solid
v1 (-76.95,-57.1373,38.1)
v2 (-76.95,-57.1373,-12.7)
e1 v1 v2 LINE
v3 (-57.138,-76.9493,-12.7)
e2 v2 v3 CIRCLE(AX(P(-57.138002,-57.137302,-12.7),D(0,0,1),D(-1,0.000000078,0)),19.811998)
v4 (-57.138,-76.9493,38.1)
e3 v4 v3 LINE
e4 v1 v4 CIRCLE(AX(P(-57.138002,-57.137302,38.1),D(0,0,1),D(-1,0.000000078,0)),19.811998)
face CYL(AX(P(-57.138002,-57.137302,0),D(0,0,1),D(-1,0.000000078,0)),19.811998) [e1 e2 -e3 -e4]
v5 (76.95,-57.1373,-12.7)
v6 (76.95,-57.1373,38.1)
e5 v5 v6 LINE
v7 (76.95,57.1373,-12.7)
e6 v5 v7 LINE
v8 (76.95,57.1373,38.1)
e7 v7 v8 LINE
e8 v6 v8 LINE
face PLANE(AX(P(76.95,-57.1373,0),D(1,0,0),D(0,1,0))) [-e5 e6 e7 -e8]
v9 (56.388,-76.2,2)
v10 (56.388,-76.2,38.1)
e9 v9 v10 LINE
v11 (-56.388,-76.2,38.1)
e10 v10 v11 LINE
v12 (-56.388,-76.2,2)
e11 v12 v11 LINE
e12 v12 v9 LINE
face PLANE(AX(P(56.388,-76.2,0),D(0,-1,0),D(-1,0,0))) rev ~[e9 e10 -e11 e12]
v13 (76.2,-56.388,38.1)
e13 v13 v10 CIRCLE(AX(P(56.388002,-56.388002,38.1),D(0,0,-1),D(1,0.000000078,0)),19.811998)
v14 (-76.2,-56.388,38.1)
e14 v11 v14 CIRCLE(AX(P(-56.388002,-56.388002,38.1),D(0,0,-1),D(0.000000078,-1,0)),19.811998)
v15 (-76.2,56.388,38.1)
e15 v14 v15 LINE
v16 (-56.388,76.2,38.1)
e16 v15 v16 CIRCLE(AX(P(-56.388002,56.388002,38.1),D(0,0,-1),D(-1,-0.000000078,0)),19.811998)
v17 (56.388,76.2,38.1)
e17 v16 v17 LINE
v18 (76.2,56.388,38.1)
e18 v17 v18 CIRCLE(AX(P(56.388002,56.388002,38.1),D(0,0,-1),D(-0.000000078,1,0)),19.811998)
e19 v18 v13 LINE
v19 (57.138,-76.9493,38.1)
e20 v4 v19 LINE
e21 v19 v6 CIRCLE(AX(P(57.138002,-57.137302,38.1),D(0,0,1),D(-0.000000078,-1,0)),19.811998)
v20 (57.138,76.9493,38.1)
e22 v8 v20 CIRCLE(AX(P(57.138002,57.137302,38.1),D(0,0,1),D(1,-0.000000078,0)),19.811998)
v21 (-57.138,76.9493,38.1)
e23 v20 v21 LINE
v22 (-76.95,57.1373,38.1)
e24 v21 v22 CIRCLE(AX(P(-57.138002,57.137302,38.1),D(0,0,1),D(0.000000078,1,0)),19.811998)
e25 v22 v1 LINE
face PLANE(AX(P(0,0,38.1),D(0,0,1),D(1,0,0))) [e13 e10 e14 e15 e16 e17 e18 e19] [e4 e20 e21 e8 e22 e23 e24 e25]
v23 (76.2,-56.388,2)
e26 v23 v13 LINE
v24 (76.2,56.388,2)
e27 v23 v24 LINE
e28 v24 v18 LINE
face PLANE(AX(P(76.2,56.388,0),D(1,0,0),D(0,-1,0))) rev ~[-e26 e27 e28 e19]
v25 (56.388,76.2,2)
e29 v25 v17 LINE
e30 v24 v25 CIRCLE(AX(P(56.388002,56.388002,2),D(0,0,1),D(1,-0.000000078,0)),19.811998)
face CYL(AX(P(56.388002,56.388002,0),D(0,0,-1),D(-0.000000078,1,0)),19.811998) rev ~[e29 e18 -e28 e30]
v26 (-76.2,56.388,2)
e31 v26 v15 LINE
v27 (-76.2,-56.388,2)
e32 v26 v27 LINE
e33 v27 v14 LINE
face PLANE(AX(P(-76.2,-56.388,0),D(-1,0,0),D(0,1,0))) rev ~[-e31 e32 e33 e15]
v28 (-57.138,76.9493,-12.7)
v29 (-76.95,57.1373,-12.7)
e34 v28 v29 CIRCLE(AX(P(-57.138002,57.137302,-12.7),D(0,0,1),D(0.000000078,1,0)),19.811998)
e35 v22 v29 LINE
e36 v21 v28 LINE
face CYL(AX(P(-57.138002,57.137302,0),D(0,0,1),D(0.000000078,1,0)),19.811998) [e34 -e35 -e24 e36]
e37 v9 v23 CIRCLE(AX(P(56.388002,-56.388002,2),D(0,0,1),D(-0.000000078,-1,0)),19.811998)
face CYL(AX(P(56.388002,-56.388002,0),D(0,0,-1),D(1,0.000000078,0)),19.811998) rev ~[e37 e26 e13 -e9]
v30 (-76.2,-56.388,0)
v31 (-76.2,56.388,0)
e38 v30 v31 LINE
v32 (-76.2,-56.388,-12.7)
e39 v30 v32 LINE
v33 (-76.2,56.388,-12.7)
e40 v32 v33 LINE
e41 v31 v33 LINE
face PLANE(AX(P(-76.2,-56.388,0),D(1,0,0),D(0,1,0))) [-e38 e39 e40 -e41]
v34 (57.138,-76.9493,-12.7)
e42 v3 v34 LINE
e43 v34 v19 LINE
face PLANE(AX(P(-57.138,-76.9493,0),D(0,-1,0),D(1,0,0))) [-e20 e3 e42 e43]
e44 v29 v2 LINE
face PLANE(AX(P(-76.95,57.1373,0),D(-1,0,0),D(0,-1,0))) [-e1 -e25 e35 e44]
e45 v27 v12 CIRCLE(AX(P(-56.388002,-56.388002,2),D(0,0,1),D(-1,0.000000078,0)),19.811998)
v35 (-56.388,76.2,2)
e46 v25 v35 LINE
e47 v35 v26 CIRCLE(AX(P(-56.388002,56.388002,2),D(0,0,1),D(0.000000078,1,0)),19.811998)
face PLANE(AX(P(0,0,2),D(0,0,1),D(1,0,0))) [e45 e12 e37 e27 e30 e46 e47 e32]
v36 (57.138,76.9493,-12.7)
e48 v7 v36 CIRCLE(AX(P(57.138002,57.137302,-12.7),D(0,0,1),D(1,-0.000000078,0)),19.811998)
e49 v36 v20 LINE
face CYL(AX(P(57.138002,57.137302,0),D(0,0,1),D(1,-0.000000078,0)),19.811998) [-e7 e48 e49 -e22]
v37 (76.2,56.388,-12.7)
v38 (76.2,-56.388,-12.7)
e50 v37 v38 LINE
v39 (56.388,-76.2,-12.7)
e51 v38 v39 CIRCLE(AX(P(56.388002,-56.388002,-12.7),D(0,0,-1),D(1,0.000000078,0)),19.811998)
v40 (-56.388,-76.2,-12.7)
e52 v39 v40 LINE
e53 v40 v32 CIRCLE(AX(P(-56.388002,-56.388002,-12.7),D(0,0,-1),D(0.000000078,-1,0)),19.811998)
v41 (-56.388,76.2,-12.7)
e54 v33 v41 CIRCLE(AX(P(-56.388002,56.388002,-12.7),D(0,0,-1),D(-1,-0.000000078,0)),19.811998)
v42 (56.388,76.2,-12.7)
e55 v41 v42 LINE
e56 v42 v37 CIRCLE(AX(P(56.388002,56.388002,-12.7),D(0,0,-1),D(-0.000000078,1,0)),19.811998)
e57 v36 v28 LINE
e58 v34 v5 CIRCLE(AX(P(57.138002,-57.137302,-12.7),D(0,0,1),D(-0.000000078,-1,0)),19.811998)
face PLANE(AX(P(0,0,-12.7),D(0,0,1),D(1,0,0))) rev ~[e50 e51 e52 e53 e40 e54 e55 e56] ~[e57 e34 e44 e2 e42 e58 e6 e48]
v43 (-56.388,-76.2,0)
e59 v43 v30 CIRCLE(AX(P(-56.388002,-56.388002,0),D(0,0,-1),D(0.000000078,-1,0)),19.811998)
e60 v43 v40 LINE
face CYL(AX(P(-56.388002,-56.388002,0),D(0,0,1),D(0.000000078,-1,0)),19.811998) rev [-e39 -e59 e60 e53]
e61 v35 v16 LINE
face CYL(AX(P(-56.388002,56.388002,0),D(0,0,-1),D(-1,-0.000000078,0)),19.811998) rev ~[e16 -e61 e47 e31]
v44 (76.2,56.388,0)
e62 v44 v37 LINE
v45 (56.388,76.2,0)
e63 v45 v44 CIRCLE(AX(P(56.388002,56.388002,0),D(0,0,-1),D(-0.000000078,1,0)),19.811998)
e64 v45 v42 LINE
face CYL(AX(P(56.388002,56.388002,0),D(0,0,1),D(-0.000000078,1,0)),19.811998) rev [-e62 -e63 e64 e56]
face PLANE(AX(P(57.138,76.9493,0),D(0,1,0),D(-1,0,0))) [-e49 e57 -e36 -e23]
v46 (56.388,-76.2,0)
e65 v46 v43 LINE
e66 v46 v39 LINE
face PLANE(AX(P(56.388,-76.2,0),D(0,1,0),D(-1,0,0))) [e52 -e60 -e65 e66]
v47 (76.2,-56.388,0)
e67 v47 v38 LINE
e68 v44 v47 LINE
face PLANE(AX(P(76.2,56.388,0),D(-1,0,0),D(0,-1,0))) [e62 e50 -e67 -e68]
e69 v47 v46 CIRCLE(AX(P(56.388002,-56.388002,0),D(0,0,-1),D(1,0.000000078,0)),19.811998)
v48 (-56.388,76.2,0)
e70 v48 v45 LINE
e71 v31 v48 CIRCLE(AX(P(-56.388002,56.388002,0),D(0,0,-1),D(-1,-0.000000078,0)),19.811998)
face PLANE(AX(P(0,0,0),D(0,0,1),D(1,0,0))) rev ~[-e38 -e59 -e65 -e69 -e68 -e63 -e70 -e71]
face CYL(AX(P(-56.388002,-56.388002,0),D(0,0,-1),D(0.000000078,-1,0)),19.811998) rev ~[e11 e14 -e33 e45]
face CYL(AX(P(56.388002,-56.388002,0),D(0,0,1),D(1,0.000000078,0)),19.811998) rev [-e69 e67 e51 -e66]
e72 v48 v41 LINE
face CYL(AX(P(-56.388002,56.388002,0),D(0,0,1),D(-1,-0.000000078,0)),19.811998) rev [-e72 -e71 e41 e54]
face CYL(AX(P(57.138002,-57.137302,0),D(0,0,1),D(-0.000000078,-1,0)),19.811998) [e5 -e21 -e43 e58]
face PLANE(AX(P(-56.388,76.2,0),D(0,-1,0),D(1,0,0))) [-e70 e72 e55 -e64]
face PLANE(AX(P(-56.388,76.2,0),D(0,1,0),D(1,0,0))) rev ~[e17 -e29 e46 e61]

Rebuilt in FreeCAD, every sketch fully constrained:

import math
import FreeCAD as App
import Part
import Sketcher
Q = App.Units.Quantity

doc = App.newDocument("Part")
body = doc.addObject("PartDesign::Body", "Body")

# Sketch on XY plane
sketch1 = doc.addObject("Sketcher::SketchObject", "Sketch")
body.addObject(sketch1)
sketch1.AttachmentSupport = (doc.XY_Plane, [""])
sketch1.MapMode = "FlatFace"
sketch1.addGeometry([
    Part.LineSegment(App.Vector(-57, -77, 0), App.Vector(57, -77, 0)),  # 0
    Part.ArcOfCircle(Part.Circle(App.Vector(57, -57, 0), App.Vector(0, 0, 1), 20), math.radians(-90), math.radians(0)),  # 1
    Part.LineSegment(App.Vector(77, -57, 0), App.Vector(77, 57, 0)),  # 2
    Part.ArcOfCircle(Part.Circle(App.Vector(57, 57, 0), App.Vector(0, 0, 1), 20), math.radians(0), math.radians(90)),  # 3
    Part.LineSegment(App.Vector(57, 77, 0), App.Vector(-57, 77, 0)),  # 4
    Part.ArcOfCircle(Part.Circle(App.Vector(-57, 57, 0), App.Vector(0, 0, 1), 20), math.radians(90), math.radians(180)),  # 5
    Part.LineSegment(App.Vector(-77, 57, 0), App.Vector(-77, -57, 0)),  # 6
    Part.ArcOfCircle(Part.Circle(App.Vector(-57, -57, 0), App.Vector(0, 0, 1), 20), math.radians(180), math.radians(270)),  # 7
    Part.ArcOfCircle(Part.Circle(App.Vector(-56, 56, 0), App.Vector(0, 0, 1), 20), math.radians(90), math.radians(180)),  # 8
    Part.LineSegment(App.Vector(-56, 76, 0), App.Vector(56, 76, 0)),  # 9
    Part.ArcOfCircle(Part.Circle(App.Vector(56, 56, 0), App.Vector(0, 0, 1), 20), math.radians(0), math.radians(90)),  # 10
    Part.LineSegment(App.Vector(76, 56, 0), App.Vector(76, -56, 0)),  # 11
    Part.ArcOfCircle(Part.Circle(App.Vector(56, -56, 0), App.Vector(0, 0, 1), 20), math.radians(-90), math.radians(0)),  # 12
    Part.LineSegment(App.Vector(56, -76, 0), App.Vector(-56, -76, 0)),  # 13
    Part.ArcOfCircle(Part.Circle(App.Vector(-56, -56, 0), App.Vector(0, 0, 1), 20), math.radians(180), math.radians(270)),  # 14
    Part.LineSegment(App.Vector(-76, -56, 0), App.Vector(-76, 56, 0)),  # 15
], False)
sketch1.addConstraint([
    Sketcher.Constraint("Tangent", 0, 2, 1, 1),
    Sketcher.Constraint("Tangent", 1, 2, 2, 1),
    Sketcher.Constraint("Tangent", 2, 2, 3, 1),
    Sketcher.Constraint("Tangent", 3, 2, 4, 1),
    Sketcher.Constraint("Tangent", 4, 2, 5, 1),
    Sketcher.Constraint("Tangent", 5, 2, 6, 1),
    Sketcher.Constraint("Tangent", 6, 2, 7, 1),
    Sketcher.Constraint("Tangent", 7, 2, 0, 1),
    Sketcher.Constraint("Tangent", 8, 1, 9, 1),
    Sketcher.Constraint("Tangent", 9, 2, 10, 2),
    Sketcher.Constraint("Tangent", 10, 1, 11, 1),
    Sketcher.Constraint("Tangent", 11, 2, 12, 2),
    Sketcher.Constraint("Tangent", 12, 1, 13, 1),
    Sketcher.Constraint("Tangent", 13, 2, 14, 2),
    Sketcher.Constraint("Tangent", 14, 1, 15, 1),
    Sketcher.Constraint("Tangent", 15, 2, 8, 2),
    Sketcher.Constraint("Horizontal", 0),
    Sketcher.Constraint("Vertical", 2),
    Sketcher.Constraint("Horizontal", 4),
    Sketcher.Constraint("Vertical", 6),
    Sketcher.Constraint("Horizontal", 9),
    Sketcher.Constraint("Vertical", 11),
    Sketcher.Constraint("Horizontal", 13),
    Sketcher.Constraint("Vertical", 15),
    Sketcher.Constraint("Equal", 1, 3),
    Sketcher.Constraint("Equal", 3, 5),
    Sketcher.Constraint("Equal", 5, 7),
    Sketcher.Constraint("Equal", 7, 8),
    Sketcher.Constraint("Equal", 8, 10),
    Sketcher.Constraint("Equal", 10, 12),
    Sketcher.Constraint("Equal", 12, 14),
    Sketcher.Constraint("Symmetric", 1, 3, 5, 3, -1, 1),
    Sketcher.Constraint("Symmetric", 8, 3, 12, 3, -1, 1),
    Sketcher.Constraint("Equal", 13, 11),
    Sketcher.Constraint("Radius", 1, Q("0.7799999 in")),
    Sketcher.Constraint("DistanceY", -1, 1, 8, 1, Q("3 in")),
    Sketcher.Constraint("DistanceY", 2, 1, 2, 2, Q("4.499 in")),
    Sketcher.Constraint("DistanceX", 0, 1, 0, 2, Q("114.276 mm")),
])
pad1 = doc.addObject("PartDesign::Pad", "Pad")
body.addObject(pad1)
pad1.Profile = sketch1
pad1.Length = Q("1.5 in")

# Sketch on XY plane
sketch2 = doc.addObject("Sketcher::SketchObject", "Sketch001")
body.addObject(sketch2)
sketch2.AttachmentSupport = (doc.XY_Plane, [""])
sketch2.MapMode = "FlatFace"
sketch2.addGeometry([
    Part.ArcOfCircle(Part.Circle(App.Vector(56, 56, 0), App.Vector(0, 0, 1), 20), math.radians(0), math.radians(90)),  # 0
    Part.LineSegment(App.Vector(56, 76, 0), App.Vector(-56, 76, 0)),  # 1
    Part.ArcOfCircle(Part.Circle(App.Vector(-56, 56, 0), App.Vector(0, 0, 1), 20), math.radians(90), math.radians(180)),  # 2
    Part.LineSegment(App.Vector(-76, 56, 0), App.Vector(-76, -56, 0)),  # 3
    Part.ArcOfCircle(Part.Circle(App.Vector(-56, -56, 0), App.Vector(0, 0, 1), 20), math.radians(180), math.radians(270)),  # 4
    Part.LineSegment(App.Vector(-56, -76, 0), App.Vector(56, -76, 0)),  # 5
    Part.ArcOfCircle(Part.Circle(App.Vector(56, -56, 0), App.Vector(0, 0, 1), 20), math.radians(-90), math.radians(0)),  # 6
    Part.LineSegment(App.Vector(76, -56, 0), App.Vector(76, 56, 0)),  # 7
], False)
sketch2.addConstraint([
    Sketcher.Constraint("Tangent", 0, 2, 1, 1),
    Sketcher.Constraint("Tangent", 1, 2, 2, 1),
    Sketcher.Constraint("Tangent", 2, 2, 3, 1),
    Sketcher.Constraint("Tangent", 3, 2, 4, 1),
    Sketcher.Constraint("Tangent", 4, 2, 5, 1),
    Sketcher.Constraint("Tangent", 5, 2, 6, 1),
    Sketcher.Constraint("Tangent", 6, 2, 7, 1),
    Sketcher.Constraint("Tangent", 7, 2, 0, 1),
    Sketcher.Constraint("Horizontal", 1),
    Sketcher.Constraint("Vertical", 3),
    Sketcher.Constraint("Horizontal", 5),
    Sketcher.Constraint("Vertical", 7),
    Sketcher.Constraint("Equal", 0, 2),
    Sketcher.Constraint("Equal", 2, 4),
    Sketcher.Constraint("Equal", 4, 6),
    Sketcher.Constraint("Symmetric", 0, 3, 4, 3, -1, 1),
    Sketcher.Constraint("Equal", 5, 3),
    Sketcher.Constraint("Radius", 0, Q("0.7799999 in")),
    Sketcher.Constraint("DistanceY", -1, 1, 0, 2, Q("3 in")),
])
pad2 = doc.addObject("PartDesign::Pad", "Pad001")
body.addObject(pad2)
pad2.Profile = sketch2
pad2.Length = 2

# Sketch on XY plane
sketch3 = doc.addObject("Sketcher::SketchObject", "Sketch002")
body.addObject(sketch3)
sketch3.AttachmentSupport = (doc.XY_Plane, [""])
sketch3.MapMode = "FlatFace"
sketch3.addGeometry([
    Part.LineSegment(App.Vector(-57, -77, 0), App.Vector(57, -77, 0)),  # 0
    Part.ArcOfCircle(Part.Circle(App.Vector(57, -57, 0), App.Vector(0, 0, 1), 20), math.radians(-90), math.radians(0)),  # 1
    Part.LineSegment(App.Vector(77, -57, 0), App.Vector(77, 57, 0)),  # 2
    Part.ArcOfCircle(Part.Circle(App.Vector(57, 57, 0), App.Vector(0, 0, 1), 20), math.radians(0), math.radians(90)),  # 3
    Part.LineSegment(App.Vector(57, 77, 0), App.Vector(-57, 77, 0)),  # 4
    Part.ArcOfCircle(Part.Circle(App.Vector(-57, 57, 0), App.Vector(0, 0, 1), 20), math.radians(90), math.radians(180)),  # 5
    Part.LineSegment(App.Vector(-77, 57, 0), App.Vector(-77, -57, 0)),  # 6
    Part.ArcOfCircle(Part.Circle(App.Vector(-57, -57, 0), App.Vector(0, 0, 1), 20), math.radians(180), math.radians(270)),  # 7
    Part.ArcOfCircle(Part.Circle(App.Vector(-56, 56, 0), App.Vector(0, 0, 1), 20), math.radians(90), math.radians(180)),  # 8
    Part.LineSegment(App.Vector(-56, 76, 0), App.Vector(56, 76, 0)),  # 9
    Part.ArcOfCircle(Part.Circle(App.Vector(56, 56, 0), App.Vector(0, 0, 1), 20), math.radians(0), math.radians(90)),  # 10
    Part.LineSegment(App.Vector(76, 56, 0), App.Vector(76, -56, 0)),  # 11
    Part.ArcOfCircle(Part.Circle(App.Vector(56, -56, 0), App.Vector(0, 0, 1), 20), math.radians(-90), math.radians(0)),  # 12
    Part.LineSegment(App.Vector(56, -76, 0), App.Vector(-56, -76, 0)),  # 13
    Part.ArcOfCircle(Part.Circle(App.Vector(-56, -56, 0), App.Vector(0, 0, 1), 20), math.radians(180), math.radians(270)),  # 14
    Part.LineSegment(App.Vector(-76, -56, 0), App.Vector(-76, 56, 0)),  # 15
], False)
sketch3.addConstraint([
    Sketcher.Constraint("Tangent", 0, 2, 1, 1),
    Sketcher.Constraint("Tangent", 1, 2, 2, 1),
    Sketcher.Constraint("Tangent", 2, 2, 3, 1),
    Sketcher.Constraint("Tangent", 3, 2, 4, 1),
    Sketcher.Constraint("Tangent", 4, 2, 5, 1),
    Sketcher.Constraint("Tangent", 5, 2, 6, 1),
    Sketcher.Constraint("Tangent", 6, 2, 7, 1),
    Sketcher.Constraint("Tangent", 7, 2, 0, 1),
    Sketcher.Constraint("Tangent", 8, 1, 9, 1),
    Sketcher.Constraint("Tangent", 9, 2, 10, 2),
    Sketcher.Constraint("Tangent", 10, 1, 11, 1),
    Sketcher.Constraint("Tangent", 11, 2, 12, 2),
    Sketcher.Constraint("Tangent", 12, 1, 13, 1),
    Sketcher.Constraint("Tangent", 13, 2, 14, 2),
    Sketcher.Constraint("Tangent", 14, 1, 15, 1),
    Sketcher.Constraint("Tangent", 15, 2, 8, 2),
    Sketcher.Constraint("Horizontal", 0),
    Sketcher.Constraint("Vertical", 2),
    Sketcher.Constraint("Horizontal", 4),
    Sketcher.Constraint("Vertical", 6),
    Sketcher.Constraint("Horizontal", 9),
    Sketcher.Constraint("Vertical", 11),
    Sketcher.Constraint("Horizontal", 13),
    Sketcher.Constraint("Vertical", 15),
    Sketcher.Constraint("Equal", 1, 3),
    Sketcher.Constraint("Equal", 3, 5),
    Sketcher.Constraint("Equal", 5, 7),
    Sketcher.Constraint("Equal", 7, 8),
    Sketcher.Constraint("Equal", 8, 10),
    Sketcher.Constraint("Equal", 10, 12),
    Sketcher.Constraint("Equal", 12, 14),
    Sketcher.Constraint("Symmetric", 1, 3, 5, 3, -1, 1),
    Sketcher.Constraint("Symmetric", 8, 3, 12, 3, -1, 1),
    Sketcher.Constraint("Equal", 13, 11),
    Sketcher.Constraint("Radius", 1, Q("0.7799999 in")),
    Sketcher.Constraint("DistanceY", -1, 1, 8, 1, Q("3 in")),
    Sketcher.Constraint("DistanceY", 2, 1, 2, 2, Q("4.499 in")),
    Sketcher.Constraint("DistanceX", 0, 1, 0, 2, Q("114.276 mm")),
])
pad3 = doc.addObject("PartDesign::Pad", "Pad002")
body.addObject(pad3)
pad3.Profile = sketch3
pad3.Length = Q("0.5 in")
pad3.Reversed = True

doc.recompute()
